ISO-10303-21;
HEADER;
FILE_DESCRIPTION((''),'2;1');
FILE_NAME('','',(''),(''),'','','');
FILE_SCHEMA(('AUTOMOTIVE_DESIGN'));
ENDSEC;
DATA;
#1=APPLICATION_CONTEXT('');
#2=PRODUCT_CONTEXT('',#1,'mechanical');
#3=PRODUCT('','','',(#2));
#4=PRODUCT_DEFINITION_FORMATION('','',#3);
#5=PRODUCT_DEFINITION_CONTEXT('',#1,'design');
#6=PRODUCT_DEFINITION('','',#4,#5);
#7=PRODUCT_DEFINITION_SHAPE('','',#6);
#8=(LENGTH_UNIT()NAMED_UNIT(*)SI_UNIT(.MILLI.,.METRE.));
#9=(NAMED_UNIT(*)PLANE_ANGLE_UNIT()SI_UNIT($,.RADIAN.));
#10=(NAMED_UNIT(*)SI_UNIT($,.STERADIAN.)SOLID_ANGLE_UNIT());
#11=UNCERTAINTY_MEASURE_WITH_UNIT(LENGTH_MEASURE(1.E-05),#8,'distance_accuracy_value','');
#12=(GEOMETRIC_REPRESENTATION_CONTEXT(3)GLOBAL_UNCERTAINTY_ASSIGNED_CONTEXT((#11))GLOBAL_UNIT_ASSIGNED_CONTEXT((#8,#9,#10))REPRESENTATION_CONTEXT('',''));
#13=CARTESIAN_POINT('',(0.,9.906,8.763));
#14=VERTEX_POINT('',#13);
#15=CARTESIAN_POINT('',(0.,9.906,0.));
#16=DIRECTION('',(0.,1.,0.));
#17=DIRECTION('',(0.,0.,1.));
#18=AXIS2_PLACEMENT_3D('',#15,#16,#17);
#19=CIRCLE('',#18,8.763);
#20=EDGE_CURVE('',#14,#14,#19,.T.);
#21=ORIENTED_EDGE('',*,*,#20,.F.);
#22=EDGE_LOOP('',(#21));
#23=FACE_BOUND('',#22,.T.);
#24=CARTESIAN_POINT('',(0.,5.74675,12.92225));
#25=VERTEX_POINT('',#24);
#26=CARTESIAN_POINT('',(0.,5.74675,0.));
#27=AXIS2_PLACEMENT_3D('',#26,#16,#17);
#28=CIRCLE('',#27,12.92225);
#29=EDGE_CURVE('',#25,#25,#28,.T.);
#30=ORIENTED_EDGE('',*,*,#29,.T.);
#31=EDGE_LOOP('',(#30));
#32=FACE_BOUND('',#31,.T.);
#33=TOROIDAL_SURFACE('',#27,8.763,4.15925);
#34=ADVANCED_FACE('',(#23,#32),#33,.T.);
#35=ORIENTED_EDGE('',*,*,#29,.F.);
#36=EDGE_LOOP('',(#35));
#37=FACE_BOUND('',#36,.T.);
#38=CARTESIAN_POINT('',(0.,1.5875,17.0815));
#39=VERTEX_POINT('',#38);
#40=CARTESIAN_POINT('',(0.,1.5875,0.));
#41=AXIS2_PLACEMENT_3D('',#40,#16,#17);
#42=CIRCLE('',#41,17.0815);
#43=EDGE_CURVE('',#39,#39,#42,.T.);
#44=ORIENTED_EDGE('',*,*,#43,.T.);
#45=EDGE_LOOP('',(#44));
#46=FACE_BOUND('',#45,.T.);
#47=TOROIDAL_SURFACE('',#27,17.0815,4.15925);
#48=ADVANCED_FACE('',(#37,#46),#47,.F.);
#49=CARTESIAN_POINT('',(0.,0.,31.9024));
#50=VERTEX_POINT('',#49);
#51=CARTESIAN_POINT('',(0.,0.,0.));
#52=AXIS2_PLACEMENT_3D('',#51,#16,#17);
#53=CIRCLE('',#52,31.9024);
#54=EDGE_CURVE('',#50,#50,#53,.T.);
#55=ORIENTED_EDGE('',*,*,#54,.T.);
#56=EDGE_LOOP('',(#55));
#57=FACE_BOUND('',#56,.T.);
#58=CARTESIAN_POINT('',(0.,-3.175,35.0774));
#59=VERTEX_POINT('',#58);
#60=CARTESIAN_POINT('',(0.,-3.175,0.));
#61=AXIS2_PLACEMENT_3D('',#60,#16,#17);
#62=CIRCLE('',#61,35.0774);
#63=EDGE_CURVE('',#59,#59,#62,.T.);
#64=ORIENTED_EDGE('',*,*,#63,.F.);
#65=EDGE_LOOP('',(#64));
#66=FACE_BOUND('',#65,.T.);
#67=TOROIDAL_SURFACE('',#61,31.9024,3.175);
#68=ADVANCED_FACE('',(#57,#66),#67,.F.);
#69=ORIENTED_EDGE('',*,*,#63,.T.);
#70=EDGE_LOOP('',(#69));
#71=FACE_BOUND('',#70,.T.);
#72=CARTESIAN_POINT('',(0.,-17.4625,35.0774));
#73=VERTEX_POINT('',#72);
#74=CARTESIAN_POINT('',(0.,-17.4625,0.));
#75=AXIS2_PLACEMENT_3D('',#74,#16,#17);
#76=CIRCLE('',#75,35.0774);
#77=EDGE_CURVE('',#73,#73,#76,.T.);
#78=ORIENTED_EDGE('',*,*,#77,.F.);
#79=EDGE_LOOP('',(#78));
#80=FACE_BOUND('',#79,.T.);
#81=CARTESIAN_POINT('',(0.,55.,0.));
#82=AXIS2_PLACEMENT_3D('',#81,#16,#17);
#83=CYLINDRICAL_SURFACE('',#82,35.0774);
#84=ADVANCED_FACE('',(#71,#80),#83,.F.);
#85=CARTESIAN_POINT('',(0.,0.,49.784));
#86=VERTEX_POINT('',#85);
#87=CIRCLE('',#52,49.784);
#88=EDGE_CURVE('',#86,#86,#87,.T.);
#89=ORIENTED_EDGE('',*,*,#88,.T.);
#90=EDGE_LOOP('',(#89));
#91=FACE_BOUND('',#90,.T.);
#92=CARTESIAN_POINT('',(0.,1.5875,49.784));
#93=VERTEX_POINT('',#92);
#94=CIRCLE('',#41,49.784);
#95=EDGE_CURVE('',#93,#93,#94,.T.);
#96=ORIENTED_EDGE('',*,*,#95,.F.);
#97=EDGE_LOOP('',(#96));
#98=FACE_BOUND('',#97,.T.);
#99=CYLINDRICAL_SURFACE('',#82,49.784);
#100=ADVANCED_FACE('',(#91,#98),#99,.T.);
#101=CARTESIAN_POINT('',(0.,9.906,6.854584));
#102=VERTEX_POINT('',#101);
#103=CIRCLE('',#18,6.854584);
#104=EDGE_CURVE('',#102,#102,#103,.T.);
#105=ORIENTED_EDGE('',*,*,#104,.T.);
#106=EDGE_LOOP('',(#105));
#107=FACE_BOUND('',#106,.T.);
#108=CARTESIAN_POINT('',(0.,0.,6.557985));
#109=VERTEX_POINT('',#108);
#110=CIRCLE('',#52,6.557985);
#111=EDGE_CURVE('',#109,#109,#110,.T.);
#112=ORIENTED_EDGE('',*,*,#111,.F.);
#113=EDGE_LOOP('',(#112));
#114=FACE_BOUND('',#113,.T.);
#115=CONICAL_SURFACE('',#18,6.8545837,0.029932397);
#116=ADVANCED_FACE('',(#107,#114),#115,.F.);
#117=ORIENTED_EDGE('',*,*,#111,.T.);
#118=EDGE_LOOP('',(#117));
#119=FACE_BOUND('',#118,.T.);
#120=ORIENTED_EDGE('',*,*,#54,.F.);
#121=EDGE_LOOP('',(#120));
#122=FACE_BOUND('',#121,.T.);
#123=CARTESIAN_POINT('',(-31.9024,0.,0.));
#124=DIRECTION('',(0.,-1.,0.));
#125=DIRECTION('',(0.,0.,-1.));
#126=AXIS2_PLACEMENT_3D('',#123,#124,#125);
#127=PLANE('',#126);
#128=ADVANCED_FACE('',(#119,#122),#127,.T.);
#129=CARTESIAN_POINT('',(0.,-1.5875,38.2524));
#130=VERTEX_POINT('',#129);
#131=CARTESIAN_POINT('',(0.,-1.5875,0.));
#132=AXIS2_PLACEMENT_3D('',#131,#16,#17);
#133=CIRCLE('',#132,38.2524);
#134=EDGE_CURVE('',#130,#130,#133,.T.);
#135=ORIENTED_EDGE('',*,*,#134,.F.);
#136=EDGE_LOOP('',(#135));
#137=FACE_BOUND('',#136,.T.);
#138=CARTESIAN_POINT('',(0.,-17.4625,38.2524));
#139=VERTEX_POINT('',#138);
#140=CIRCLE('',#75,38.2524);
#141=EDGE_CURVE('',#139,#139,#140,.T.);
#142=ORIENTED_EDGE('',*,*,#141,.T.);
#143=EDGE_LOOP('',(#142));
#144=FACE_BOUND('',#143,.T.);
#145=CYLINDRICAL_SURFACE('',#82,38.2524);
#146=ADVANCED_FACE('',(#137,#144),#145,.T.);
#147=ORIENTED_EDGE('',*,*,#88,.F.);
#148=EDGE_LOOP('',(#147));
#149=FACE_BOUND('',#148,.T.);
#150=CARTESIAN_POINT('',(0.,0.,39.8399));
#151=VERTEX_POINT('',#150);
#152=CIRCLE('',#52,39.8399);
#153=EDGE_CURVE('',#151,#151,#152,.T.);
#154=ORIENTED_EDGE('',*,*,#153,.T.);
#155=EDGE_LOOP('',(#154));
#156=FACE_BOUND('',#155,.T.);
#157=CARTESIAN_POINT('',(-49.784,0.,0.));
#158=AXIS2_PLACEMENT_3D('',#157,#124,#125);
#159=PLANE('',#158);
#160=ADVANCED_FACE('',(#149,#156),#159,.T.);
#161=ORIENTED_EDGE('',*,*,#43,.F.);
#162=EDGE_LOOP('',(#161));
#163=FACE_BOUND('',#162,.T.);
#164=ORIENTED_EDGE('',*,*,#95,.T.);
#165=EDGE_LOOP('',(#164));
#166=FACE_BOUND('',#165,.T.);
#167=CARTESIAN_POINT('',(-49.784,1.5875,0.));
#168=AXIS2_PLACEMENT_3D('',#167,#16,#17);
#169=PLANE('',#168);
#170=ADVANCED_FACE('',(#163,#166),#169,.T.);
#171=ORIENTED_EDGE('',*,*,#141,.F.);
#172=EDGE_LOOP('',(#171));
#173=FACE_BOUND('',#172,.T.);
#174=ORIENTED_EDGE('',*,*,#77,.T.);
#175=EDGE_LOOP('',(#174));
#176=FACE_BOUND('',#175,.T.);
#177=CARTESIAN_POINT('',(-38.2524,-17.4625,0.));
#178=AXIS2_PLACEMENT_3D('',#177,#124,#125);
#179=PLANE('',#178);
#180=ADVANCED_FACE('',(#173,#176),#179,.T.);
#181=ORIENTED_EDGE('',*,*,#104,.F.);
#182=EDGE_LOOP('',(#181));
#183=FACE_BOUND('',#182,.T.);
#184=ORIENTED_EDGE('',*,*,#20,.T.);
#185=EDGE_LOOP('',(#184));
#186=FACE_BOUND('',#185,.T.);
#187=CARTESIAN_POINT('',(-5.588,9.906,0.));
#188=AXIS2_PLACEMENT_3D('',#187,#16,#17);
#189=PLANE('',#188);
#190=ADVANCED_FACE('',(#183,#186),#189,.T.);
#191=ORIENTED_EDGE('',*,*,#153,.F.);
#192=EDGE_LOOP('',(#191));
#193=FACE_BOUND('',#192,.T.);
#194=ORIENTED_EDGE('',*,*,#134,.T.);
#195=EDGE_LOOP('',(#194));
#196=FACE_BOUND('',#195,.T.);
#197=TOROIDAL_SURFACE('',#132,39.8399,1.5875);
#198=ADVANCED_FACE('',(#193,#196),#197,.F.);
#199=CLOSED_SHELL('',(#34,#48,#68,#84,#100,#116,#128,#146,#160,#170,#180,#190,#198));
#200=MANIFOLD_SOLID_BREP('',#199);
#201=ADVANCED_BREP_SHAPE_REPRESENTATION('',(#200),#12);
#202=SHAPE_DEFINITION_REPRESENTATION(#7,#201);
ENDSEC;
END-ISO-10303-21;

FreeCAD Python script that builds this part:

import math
import FreeCAD as App
import Part
import Sketcher
Q = App.Units.Quantity

doc = App.newDocument("Part")
body = doc.addObject("PartDesign::Body", "Body")

# Sketch on XY plane
sketch1 = body.newObject("Sketcher::SketchObject", "Sketch")
sketch1.AttachmentSupport = (doc.getObject("XY_Plane"), [""])
sketch1.MapMode = "FlatFace"
sketch1.addGeometry([
    Part.LineSegment(App.Vector(-49.8, 0, 0), App.Vector(-39.8, 0, 0)),  # 0
    Part.ArcOfCircle(Part.Circle(App.Vector(-39.8, -1.6, 0), App.Vector(0, 0, 1), 1.6), math.radians(0), math.radians(90)),  # 1
    Part.LineSegment(App.Vector(-38.3, -1.6, 0), App.Vector(-38.3, -17.5, 0)),  # 2
    Part.LineSegment(App.Vector(-38.3, -17.5, 0), App.Vector(-35.1, -17.5, 0)),  # 3
    Part.LineSegment(App.Vector(-35.1, -17.5, 0), App.Vector(-35.1, -3.2, 0)),  # 4
    Part.ArcOfCircle(Part.Circle(App.Vector(-31.9, -3.2, 0), App.Vector(0, 0, 1), 3.2), math.radians(90), math.radians(180)),  # 5
    Part.LineSegment(App.Vector(-31.9, 0, 0), App.Vector(-5.6, 0, 0)),  # 6
    Part.LineSegment(App.Vector(-5.6, 0, 0), App.Vector(-5.6, 9.9, 0)),  # 7
    Part.LineSegment(App.Vector(-5.6, 9.9, 0), App.Vector(-8.8, 9.9, 0)),  # 8
    Part.ArcOfCircle(Part.Circle(App.Vector(-8.8, 5.7, 0), App.Vector(0, 0, 1), 4.2), math.radians(90), math.radians(180)),  # 9
    Part.ArcOfCircle(Part.Circle(App.Vector(-17.1, 5.7, 0), App.Vector(0, 0, 1), 4.2), math.radians(-90), math.radians(0)),  # 10
    Part.LineSegment(App.Vector(-17.1, 1.6, 0), App.Vector(-49.8, 1.6, 0)),  # 11
    Part.LineSegment(App.Vector(-49.8, 1.6, 0), App.Vector(-49.8, 0, 0)),  # 12
], False)
sketch1.addConstraint([
    Sketcher.Constraint("Tangent", 0, 2, 1, 2),
    Sketcher.Constraint("Tangent", 1, 1, 2, 1),
    Sketcher.Constraint("Coincident", 2, 2, 3, 1),
    Sketcher.Constraint("Coincident", 3, 2, 4, 1),
    Sketcher.Constraint("Tangent", 4, 2, 5, 2),
    Sketcher.Constraint("Tangent", 5, 1, 6, 1),
    Sketcher.Constraint("Coincident", 6, 2, 7, 1),
    Sketcher.Constraint("Coincident", 7, 2, 8, 1),
    Sketcher.Constraint("Tangent", 8, 2, 9, 1),
    Sketcher.Constraint("Tangent", 9, 2, 10, 2),
    Sketcher.Constraint("Tangent", 10, 1, 11, 1),
    Sketcher.Constraint("Coincident", 11, 2, 12, 1),
    Sketcher.Constraint("Coincident", 12, 2, 0, 1),
    Sketcher.Constraint("Horizontal", 0),
    Sketcher.Constraint("Vertical", 2),
    Sketcher.Constraint("Horizontal", 3),
    Sketcher.Constraint("Vertical", 4),
    Sketcher.Constraint("Horizontal", 6),
    Sketcher.Constraint("Vertical", 7),
    Sketcher.Constraint("Horizontal", 8),
    Sketcher.Constraint("Horizontal", 11),
    Sketcher.Constraint("Vertical", 12),
    Sketcher.Constraint("Equal", 9, 10),
    Sketcher.Constraint("PointOnObject", 0, 2, -1),
    Sketcher.Constraint("PointOnObject", 5, 1, -1),
    Sketcher.Constraint("Horizontal", 9, 3, 10, 3),
    Sketcher.Constraint("Equal", 3, 8),
    Sketcher.Constraint("Radius", 1, Q("0.0625 in")),
    Sketcher.Constraint("Radius", 5, Q("0.125 in")),
    Sketcher.Constraint("DistanceY", 7, 1, 7, 2, Q("0.39 in")),
    Sketcher.Constraint("DistanceX", 3, 1, 3, 2, Q("0.125 in")),
    Sketcher.Constraint("DistanceX", 6, 1, 6, 2, Q("1.036 in")),
    Sketcher.Constraint("DistanceY", 2, 2, 2, 1, Q("0.625 in")),
    Sketcher.Constraint("DistanceY", 12, 2, 12, 1, Q("0.0625 in")),
    Sketcher.Constraint("DistanceX", 6, 2, -1, 1, Q("0.22 in")),
    Sketcher.Constraint("DistanceX", 11, 2, -1, 1, Q("1.96 in")),
])
revolution = body.newObject("PartDesign::Revolution", "Revolution")
revolution.Profile = sketch1
revolution.ReferenceAxis = (sketch1, ["V_Axis"])
revolution.Angle = 360

# Sketch on YZ plane
sketch2 = body.newObject("Sketcher::SketchObject", "Sketch001")
sketch2.AttachmentSupport = (doc.getObject("YZ_Plane"), [""])
sketch2.MapMode = "FlatFace"
sketch2.addGeometry([
    Part.LineSegment(App.Vector(-17.5, 0, 0), App.Vector(9.9, 0, 0)),  # 0
    Part.LineSegment(App.Vector(9.9, 0, 0), App.Vector(9.9, 6.9, 0)),  # 1
    Part.LineSegment(App.Vector(9.9, 6.9, 0), App.Vector(0, 6.6, 0)),  # 2
    Part.LineSegment(App.Vector(0, 6.6, 0), App.Vector(0, 5.6, 0)),  # 3
    Part.LineSegment(App.Vector(0, 5.6, 0), App.Vector(-17.5, 5.6, 0)),  # 4
    Part.LineSegment(App.Vector(-17.5, 5.6, 0), App.Vector(-17.5, 0, 0)),  # 5
], False)
sketch2.addConstraint([
    Sketcher.Constraint("Coincident", 0, 2, 1, 1),
    Sketcher.Constraint("Coincident", 1, 2, 2, 1),
    Sketcher.Constraint("Coincident", 2, 2, 3, 1),
    Sketcher.Constraint("Coincident", 3, 2, 4, 1),
    Sketcher.Constraint("Coincident", 4, 2, 5, 1),
    Sketcher.Constraint("Coincident", 5, 2, 0, 1),
    Sketcher.Constraint("Horizontal", 0),
    Sketcher.Constraint("Vertical", 1),
    Sketcher.Constraint("Vertical", 3),
    Sketcher.Constraint("Horizontal", 4),
    Sketcher.Constraint("Vertical", 5),
    Sketcher.Constraint("PointOnObject", 0, 2, -1),
    Sketcher.Constraint("PointOnObject", 2, 2, -2),
    Sketcher.Constraint("DistanceX", 4, 2, 4, 1, Q("0.6875 in")),
    Sketcher.Constraint("DistanceY", 5, 2, 5, 1, Q("0.219 in")),
    Sketcher.Constraint("DistanceX", -1, 1, 0, 2, Q("0.39 in")),
    Sketcher.Constraint("DistanceY", 2, 2, 1, 2, 0.296599),
    Sketcher.Constraint("DistanceY", 1, 1, 1, 2, 6.854584),
])
groove = body.newObject("PartDesign::Groove", "Groove")
groove.Profile = sketch2
groove.ReferenceAxis = (sketch2, ["H_Axis"])
groove.Angle = 360

doc.recompute()
